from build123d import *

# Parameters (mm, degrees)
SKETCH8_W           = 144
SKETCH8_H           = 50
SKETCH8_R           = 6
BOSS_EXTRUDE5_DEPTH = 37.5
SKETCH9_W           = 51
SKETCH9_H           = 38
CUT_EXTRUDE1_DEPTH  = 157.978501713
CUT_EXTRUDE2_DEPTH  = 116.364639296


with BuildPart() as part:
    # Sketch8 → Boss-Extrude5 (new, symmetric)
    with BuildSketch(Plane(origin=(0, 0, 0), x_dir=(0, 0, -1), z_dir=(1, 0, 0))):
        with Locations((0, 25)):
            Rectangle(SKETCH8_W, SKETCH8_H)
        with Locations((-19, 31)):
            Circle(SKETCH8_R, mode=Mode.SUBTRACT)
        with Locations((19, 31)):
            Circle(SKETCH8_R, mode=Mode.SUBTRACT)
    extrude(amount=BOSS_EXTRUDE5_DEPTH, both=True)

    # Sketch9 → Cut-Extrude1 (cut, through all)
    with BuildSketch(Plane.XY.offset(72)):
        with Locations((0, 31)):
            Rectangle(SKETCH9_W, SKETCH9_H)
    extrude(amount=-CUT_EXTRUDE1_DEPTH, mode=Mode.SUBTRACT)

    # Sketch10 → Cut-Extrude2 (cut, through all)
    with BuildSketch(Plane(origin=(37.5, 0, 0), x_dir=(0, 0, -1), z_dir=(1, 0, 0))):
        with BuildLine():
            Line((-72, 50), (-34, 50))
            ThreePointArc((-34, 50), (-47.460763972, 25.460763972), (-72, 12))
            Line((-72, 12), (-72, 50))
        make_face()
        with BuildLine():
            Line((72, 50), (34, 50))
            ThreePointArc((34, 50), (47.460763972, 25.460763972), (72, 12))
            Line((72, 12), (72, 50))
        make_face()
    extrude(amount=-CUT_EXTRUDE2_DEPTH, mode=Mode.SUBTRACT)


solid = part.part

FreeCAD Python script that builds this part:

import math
import FreeCAD as App
import Part
import Sketcher

V = App.Vector


def add_polygon(sketch, points):
    """Adds a closed chain of lines whose ends are joined by coincident constraints."""
    first, n = sketch.GeometryCount, len(points)
    for a, b in zip(points, points[1:] + points[:1]):
        sketch.addGeometry(Part.LineSegment(App.Vector(*a, 0), App.Vector(*b, 0)), False)
    for i in range(n):
        sketch.addConstraint(Sketcher.Constraint("Coincident", first + i, 2, first + (i + 1) % n, 1))

doc = App.newDocument("Part")
body = doc.addObject("PartDesign::Body", "Body")

sketch1 = body.newObject("Sketcher::SketchObject", "Sketch")
sketch1.AttachmentSupport = (doc.getObject("YZ_Plane"), [""])
sketch1.MapMode = "FlatFace"
add_polygon(sketch1, [(50, 72), (0, 72), (0, -72), (50, -72)])
sketch1.addGeometry(Part.Circle(V(31, 19, 0), V(0, 0, 1), 6), False)
sketch1.addGeometry(Part.Circle(V(31, -19, 0), V(0, 0, 1), 6), False)
sketch1.addConstraint(Sketcher.Constraint("Horizontal", 0))
sketch1.addConstraint(Sketcher.Constraint("Vertical", 1))
sketch1.addConstraint(Sketcher.Constraint("Horizontal", 2))
sketch1.addConstraint(Sketcher.Constraint("Vertical", 3))
sketch1.addConstraint(Sketcher.Constraint("Equal", 4, 5))
sketch1.addConstraint(Sketcher.Constraint("Symmetric", 0, 2, 1, 2, -1, 1))
sketch1.addConstraint(Sketcher.Constraint("Symmetric", 4, 3, 5, 3, -1))
sketch1.addConstraint(Sketcher.Constraint("Diameter", 4, 12.0))
sketch1.addConstraint(Sketcher.Constraint("DistanceX", 0, 2, 0, 1, 50.0))
sketch1.addConstraint(Sketcher.Constraint("DistanceY", 1, 2, 1, 1, 144.0))
sketch1.addConstraint(Sketcher.Constraint("DistanceX", -1, 1, 4, 3, 31.0))
sketch1.addConstraint(Sketcher.Constraint("DistanceY", -1, 1, 4, 3, 19.0))
pad1 = body.newObject("PartDesign::Pad", "Pad")
pad1.Profile = sketch1
pad1.Length = 75
pad1.Midplane = True

sketch2 = body.newObject("Sketcher::SketchObject", "Sketch001")
sketch2.AttachmentSupport = (doc.getObject("XY_Plane"), [""])
sketch2.MapMode = "FlatFace"
sketch2.AttachmentOffset = App.Placement(V(0, 0, 72), App.Rotation())
add_polygon(sketch2, [(-26, 50), (-26, 12), (26, 12), (26, 50)])
sketch2.addConstraint(Sketcher.Constraint("Vertical", 0))
sketch2.addConstraint(Sketcher.Constraint("Horizontal", 1))
sketch2.addConstraint(Sketcher.Constraint("Vertical", 2))
sketch2.addConstraint(Sketcher.Constraint("Horizontal", 3))
sketch2.addConstraint(Sketcher.Constraint("DistanceX", 1, 1, 1, 2, 51.0))
sketch2.addConstraint(Sketcher.Constraint("DistanceY", 0, 2, 0, 1, 38.0))
sketch2.addConstraint(Sketcher.Constraint("DistanceY", -1, 1, 0, 2, 12.0))
sketch2.addConstraint(Sketcher.Constraint("DistanceX", 0, 2, -1, 1, 25.5))
pocket1 = body.newObject("PartDesign::Pocket", "Pocket")
pocket1.Profile = sketch2
pocket1.Type = "ThroughAll"

sketch3 = body.newObject("Sketcher::SketchObject", "Sketch002")
sketch3.AttachmentSupport = (doc.getObject("YZ_Plane"), [""])
sketch3.MapMode = "FlatFace"
sketch3.AttachmentOffset = App.Placement(V(0, 0, 37.5), App.Rotation())
sketch3.addGeometry(Part.LineSegment(V(50, 34, 0), V(50, 72, 0)), False)
sketch3.addGeometry(Part.LineSegment(V(50, 72, 0), V(12, 72, 0)), False)
sketch3.addGeometry(Part.ArcOfCircle(Part.Circle(V(61, 83, 0), V(0, 0, 1), 50), math.radians(-168), math.radians(-102)), False)
sketch3.addGeometry(Part.LineSegment(V(50, -72, 0), V(50, -34, 0)), False)
sketch3.addGeometry(Part.ArcOfCircle(Part.Circle(V(61, -83, 0), V(0, 0, 1), 50), math.radians(102), math.radians(168)), False)
sketch3.addGeometry(Part.LineSegment(V(12, -72, 0), V(50, -72, 0)), False)
sketch3.addConstraint(Sketcher.Constraint("Coincident", 0, 2, 1, 1))
sketch3.addConstraint(Sketcher.Constraint("Coincident", 1, 2, 2, 1))
sketch3.addConstraint(Sketcher.Constraint("Coincident", 2, 2, 0, 1))
sketch3.addConstraint(Sketcher.Constraint("Coincident", 3, 2, 4, 1))
sketch3.addConstraint(Sketcher.Constraint("Coincident", 4, 2, 5, 1))
sketch3.addConstraint(Sketcher.Constraint("Coincident", 5, 2, 3, 1))
sketch3.addConstraint(Sketcher.Constraint("Vertical", 0))
sketch3.addConstraint(Sketcher.Constraint("Horizontal", 1))
sketch3.addConstraint(Sketcher.Constraint("Vertical", 3))
sketch3.addConstraint(Sketcher.Constraint("Horizontal", 5))
sketch3.addConstraint(Sketcher.Constraint("Equal", 2, 4))
sketch3.addConstraint(Sketcher.Constraint("Symmetric", 2, 3, 4, 3, -1))
sketch3.addConstraint(Sketcher.Constraint("Symmetric", 0, 2, 5, 2, -1))
sketch3.addConstraint(Sketcher.Constraint("Equal", 5, 0))
sketch3.addConstraint(Sketcher.Constraint("Radius", 2, 50.0))
sketch3.addConstraint(Sketcher.Constraint("DistanceX", 1, 2, 1, 1, 38.0))
sketch3.addConstraint(Sketcher.Constraint("DistanceX", -1, 1, 0, 2, 50.0))
sketch3.addConstraint(Sketcher.Constraint("DistanceY", -1, 1, 0, 2, 72.0))
pocket2 = body.newObject("PartDesign::Pocket", "Pocket001")
pocket2.Profile = sketch3
pocket2.Type = "ThroughAll"

doc.recompute()
